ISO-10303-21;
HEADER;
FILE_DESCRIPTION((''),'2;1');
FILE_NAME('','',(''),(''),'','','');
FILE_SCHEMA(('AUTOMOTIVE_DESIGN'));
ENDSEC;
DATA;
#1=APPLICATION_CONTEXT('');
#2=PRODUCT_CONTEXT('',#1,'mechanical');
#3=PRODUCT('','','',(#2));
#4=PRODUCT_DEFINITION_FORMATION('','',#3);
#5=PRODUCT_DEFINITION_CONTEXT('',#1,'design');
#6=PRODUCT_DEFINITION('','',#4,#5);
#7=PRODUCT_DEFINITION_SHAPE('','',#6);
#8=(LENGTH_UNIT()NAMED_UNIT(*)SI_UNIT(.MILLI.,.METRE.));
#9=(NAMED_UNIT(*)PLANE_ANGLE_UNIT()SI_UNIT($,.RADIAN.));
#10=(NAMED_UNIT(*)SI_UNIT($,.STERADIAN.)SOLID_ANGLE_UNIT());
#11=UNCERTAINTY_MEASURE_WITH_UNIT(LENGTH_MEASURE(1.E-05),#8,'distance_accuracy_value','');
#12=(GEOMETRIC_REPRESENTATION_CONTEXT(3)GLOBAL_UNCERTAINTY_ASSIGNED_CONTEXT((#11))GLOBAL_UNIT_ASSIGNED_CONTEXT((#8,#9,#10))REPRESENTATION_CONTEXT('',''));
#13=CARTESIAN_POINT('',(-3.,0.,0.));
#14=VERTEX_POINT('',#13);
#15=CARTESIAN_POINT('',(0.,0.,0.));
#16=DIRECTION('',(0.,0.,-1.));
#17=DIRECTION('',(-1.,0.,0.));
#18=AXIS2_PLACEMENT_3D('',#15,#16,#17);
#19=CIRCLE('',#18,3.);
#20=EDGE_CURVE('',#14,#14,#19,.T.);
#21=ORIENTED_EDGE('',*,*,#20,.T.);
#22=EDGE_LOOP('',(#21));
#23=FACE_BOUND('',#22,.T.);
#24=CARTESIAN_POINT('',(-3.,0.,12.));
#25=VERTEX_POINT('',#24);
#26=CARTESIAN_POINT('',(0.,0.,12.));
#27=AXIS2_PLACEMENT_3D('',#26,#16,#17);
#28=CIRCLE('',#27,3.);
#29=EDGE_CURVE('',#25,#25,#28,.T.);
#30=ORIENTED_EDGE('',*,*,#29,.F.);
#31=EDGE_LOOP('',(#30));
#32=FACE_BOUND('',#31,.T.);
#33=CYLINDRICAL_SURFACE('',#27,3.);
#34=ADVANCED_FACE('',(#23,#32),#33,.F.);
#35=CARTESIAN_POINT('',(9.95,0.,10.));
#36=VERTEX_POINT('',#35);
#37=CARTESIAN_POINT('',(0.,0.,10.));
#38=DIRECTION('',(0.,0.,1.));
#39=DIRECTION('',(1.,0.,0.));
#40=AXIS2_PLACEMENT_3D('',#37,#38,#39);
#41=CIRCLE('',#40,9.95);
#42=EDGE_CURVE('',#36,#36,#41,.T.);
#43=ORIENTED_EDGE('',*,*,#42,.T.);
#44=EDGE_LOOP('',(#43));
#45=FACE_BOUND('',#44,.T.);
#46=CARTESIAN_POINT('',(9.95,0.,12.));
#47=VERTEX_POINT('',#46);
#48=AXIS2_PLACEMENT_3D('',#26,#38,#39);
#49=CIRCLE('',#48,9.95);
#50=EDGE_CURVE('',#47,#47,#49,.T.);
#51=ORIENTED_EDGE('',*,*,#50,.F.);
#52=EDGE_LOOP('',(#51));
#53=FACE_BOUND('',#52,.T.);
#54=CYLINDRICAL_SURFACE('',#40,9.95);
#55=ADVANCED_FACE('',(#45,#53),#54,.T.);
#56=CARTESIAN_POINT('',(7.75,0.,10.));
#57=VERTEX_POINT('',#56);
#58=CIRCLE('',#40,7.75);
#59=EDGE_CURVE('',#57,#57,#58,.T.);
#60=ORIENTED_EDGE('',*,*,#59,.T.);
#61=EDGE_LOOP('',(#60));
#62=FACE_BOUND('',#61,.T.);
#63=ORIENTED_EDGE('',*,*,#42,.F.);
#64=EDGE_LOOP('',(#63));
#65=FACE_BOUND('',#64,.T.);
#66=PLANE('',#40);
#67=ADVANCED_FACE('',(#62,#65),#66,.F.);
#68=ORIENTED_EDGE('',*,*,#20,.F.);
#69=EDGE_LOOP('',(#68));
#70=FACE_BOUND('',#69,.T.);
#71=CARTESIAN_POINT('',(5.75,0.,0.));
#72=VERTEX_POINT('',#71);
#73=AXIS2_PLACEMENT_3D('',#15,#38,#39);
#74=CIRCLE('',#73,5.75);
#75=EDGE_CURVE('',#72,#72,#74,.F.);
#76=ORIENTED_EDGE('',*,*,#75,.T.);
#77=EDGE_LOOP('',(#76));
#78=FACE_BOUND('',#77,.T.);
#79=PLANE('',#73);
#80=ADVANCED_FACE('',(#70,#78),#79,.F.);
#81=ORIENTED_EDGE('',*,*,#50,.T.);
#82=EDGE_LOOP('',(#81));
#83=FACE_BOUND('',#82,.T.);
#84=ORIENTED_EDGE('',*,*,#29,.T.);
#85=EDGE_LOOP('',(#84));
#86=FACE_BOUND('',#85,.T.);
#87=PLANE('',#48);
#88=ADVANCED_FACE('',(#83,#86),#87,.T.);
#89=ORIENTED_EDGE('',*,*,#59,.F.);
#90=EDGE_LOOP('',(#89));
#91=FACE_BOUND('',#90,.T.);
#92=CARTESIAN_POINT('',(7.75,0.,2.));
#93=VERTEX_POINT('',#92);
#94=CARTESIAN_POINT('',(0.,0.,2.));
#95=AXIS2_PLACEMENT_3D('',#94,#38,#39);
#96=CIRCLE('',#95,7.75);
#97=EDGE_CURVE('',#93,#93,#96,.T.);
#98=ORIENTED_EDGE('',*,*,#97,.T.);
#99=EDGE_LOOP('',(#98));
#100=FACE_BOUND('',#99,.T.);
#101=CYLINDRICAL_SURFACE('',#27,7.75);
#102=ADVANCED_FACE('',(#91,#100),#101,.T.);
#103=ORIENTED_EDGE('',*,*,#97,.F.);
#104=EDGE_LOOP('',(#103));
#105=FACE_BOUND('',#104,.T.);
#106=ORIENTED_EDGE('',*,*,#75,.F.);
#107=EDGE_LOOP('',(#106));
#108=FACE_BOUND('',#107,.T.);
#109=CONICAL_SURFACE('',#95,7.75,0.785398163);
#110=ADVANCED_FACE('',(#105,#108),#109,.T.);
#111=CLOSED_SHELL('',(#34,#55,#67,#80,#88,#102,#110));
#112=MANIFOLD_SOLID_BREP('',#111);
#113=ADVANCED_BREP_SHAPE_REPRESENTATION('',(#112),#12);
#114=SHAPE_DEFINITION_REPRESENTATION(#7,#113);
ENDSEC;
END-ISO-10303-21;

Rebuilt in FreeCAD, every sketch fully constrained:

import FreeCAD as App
import Part
import Sketcher
from FreeCAD import Vector
Q = App.Units.Quantity


def edges_at(feature, points):
    """Names of the edges that pass closest to the given points."""
    edges = feature.Shape.Edges
    near = lambda p: min(range(len(edges)), key=lambda i: edges[i].distToShape(Part.Vertex(*p))[0])
    return sorted({f"Edge{near(p) + 1}" for p in points})

doc = App.newDocument("Part")
params = doc.addObject("Spreadsheet::Sheet", "Params")
for row, (alias, value) in enumerate([
    ("sketch1_diameter", "5 mm"),
    ("sketch1_diameter2", "15.5 mm"),
    ("pad1_length", "12 mm"),
    ("sketch2_diameter", "6 mm"),
    ("sketch2_diameter2", "19.9 mm"),
    ("pad2_length", "2 mm"),
    ("chamfer_size", "2 mm"),
    ("sketch3_diameter", "6 mm"),
], start=1):
    params.set(f"A{row}", alias)
    params.set(f"B{row}", "=" + value)
    params.setAlias(f"B{row}", alias)

body = doc.addObject("PartDesign::Body", "Body")

sketch1 = doc.addObject("Sketcher::SketchObject", "Sketch")
body.addObject(sketch1)
sketch1.AttachmentSupport = (doc.XY_Plane, [""])
sketch1.MapMode = "FlatFace"
sketch1.addGeometry(Part.Circle(Vector(0, 0, 0), Vector(0, 0, 1), 7.8), False)
sketch1.addGeometry(Part.Circle(Vector(0, 0, 0), Vector(0, 0, 1), 2.5), False)
sketch1.addConstraint(Sketcher.Constraint("Coincident", 0, 3, -1, 1))
sketch1.addConstraint(Sketcher.Constraint("Coincident", 1, 3, -1, 1))
sketch1.addConstraint(Sketcher.Constraint("Diameter", 1, Q("5 mm")))
sketch1.addConstraint(Sketcher.Constraint("Diameter", 0, Q("15.5 mm")))
sketch1.setExpression("Constraints[2]", "Params.sketch1_diameter")
sketch1.setExpression("Constraints[3]", "Params.sketch1_diameter2")
pad1 = doc.addObject("PartDesign::Pad", "Pad")
body.addObject(pad1)
pad1.Profile = sketch1
pad1.setExpression("Length", "Params.pad1_length")

sketch2 = doc.addObject("Sketcher::SketchObject", "Sketch001")
body.addObject(sketch2)
sketch2.AttachmentSupport = (doc.XY_Plane, [""])
sketch2.MapMode = "FlatFace"
sketch2.AttachmentOffset = App.Placement(Vector(0, 0, 12), App.Rotation())
sketch2.addGeometry(Part.Circle(Vector(0, 0, 0), Vector(0, 0, 1), 9.9), False)
sketch2.addGeometry(Part.Circle(Vector(0, 0, 0), Vector(0, 0, 1), 3), False)
sketch2.addConstraint(Sketcher.Constraint("Coincident", 0, 3, -1, 1))
sketch2.addConstraint(Sketcher.Constraint("Coincident", 1, 3, -1, 1))
sketch2.addConstraint(Sketcher.Constraint("Diameter", 1, Q("6 mm")))
sketch2.addConstraint(Sketcher.Constraint("Diameter", 0, Q("19.9 mm")))
sketch2.setExpression("Constraints[2]", "Params.sketch2_diameter")
sketch2.setExpression("Constraints[3]", "Params.sketch2_diameter2")
pad2 = doc.addObject("PartDesign::Pad", "Pad001")
body.addObject(pad2)
pad2.Profile = sketch2
pad2.setExpression("Length", "Params.pad2_length")
pad2.Reversed = True
doc.recompute()

chamfer = doc.addObject("PartDesign::Chamfer", "Chamfer")
body.addObject(chamfer)
chamfer.Base = (pad2, edges_at(pad2, [(-7.75, 0, 0)]))
chamfer.setExpression("Size", "Params.chamfer_size")

sketch3 = doc.addObject("Sketcher::SketchObject", "Sketch002")
body.addObject(sketch3)
sketch3.AttachmentSupport = (doc.XY_Plane, [""])
sketch3.MapMode = "FlatFace"
sketch3.addGeometry(Part.Circle(Vector(0, 0, 0), Vector(0, 0, 1), 3), False)
sketch3.addConstraint(Sketcher.Constraint("Coincident", 0, 3, -1, 1))
sketch3.addConstraint(Sketcher.Constraint("Diameter", 0, Q("6 mm")))
sketch3.setExpression("Constraints[1]", "Params.sketch3_diameter")
pocket1 = doc.addObject("PartDesign::Pocket", "Pocket")
body.addObject(pocket1)
pocket1.Profile = sketch3
pocket1.Type = "ThroughAll"
pocket1.Reversed = True

doc.recompute()
